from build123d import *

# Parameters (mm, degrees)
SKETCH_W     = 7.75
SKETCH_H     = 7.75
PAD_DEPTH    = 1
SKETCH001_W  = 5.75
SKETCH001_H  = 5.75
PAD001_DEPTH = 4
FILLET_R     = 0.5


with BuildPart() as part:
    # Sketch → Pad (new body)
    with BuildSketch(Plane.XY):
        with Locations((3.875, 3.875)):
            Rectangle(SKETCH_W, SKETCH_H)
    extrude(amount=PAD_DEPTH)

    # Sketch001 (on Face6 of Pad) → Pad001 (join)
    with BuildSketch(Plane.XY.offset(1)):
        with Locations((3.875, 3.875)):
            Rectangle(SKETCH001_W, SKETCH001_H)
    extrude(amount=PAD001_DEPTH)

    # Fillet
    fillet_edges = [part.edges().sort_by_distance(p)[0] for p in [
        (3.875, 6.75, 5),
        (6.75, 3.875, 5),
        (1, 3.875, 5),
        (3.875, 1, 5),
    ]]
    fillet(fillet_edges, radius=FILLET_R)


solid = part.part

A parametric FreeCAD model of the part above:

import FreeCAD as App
import Part
import Sketcher
Q = App.Units.Quantity


def edges_at(feature, points):
    """Names of the edges that pass closest to the given points."""
    edges = feature.Shape.Edges
    near = lambda p: min(range(len(edges)), key=lambda i: edges[i].distToShape(Part.Vertex(*p))[0])
    return sorted({f"Edge{near(p) + 1}" for p in points})


def add_polygon(sketch, points):
    """Adds a closed chain of lines whose ends are joined by coincident constraints."""
    first, n = sketch.GeometryCount, len(points)
    for a, b in zip(points, points[1:] + points[:1]):
        sketch.addGeometry(Part.LineSegment(App.Vector(*a, 0), App.Vector(*b, 0)), False)
    for i in range(n):
        sketch.addConstraint(Sketcher.Constraint("Coincident", first + i, 2, first + (i + 1) % n, 1))

doc = App.newDocument("Part")
body = doc.addObject("PartDesign::Body", "Body")

# Sketch on XY plane
sketch1 = doc.addObject("Sketcher::SketchObject", "Sketch")
body.addObject(sketch1)
sketch1.AttachmentSupport = (doc.XY_Plane, [""])
sketch1.MapMode = "FlatFace"
add_polygon(sketch1, [(0, 8), (0, 0), (8, 0), (8, 8)])  # lines 0-3
sketch1.addConstraint([
    Sketcher.Constraint("Vertical", 0),
    Sketcher.Constraint("Horizontal", 1),
    Sketcher.Constraint("Vertical", 2),
    Sketcher.Constraint("Horizontal", 3),
    Sketcher.Constraint("Coincident", 0, 2, -1, 1),
    Sketcher.Constraint("Equal", 3, 0),
    Sketcher.Constraint("DistanceX", 1, 1, 1, 2, Q("7.75 mm")),
])
pad1 = doc.addObject("PartDesign::Pad", "Pad")
body.addObject(pad1)
pad1.Profile = sketch1
pad1.Length = 1

# Sketch on XY plane
sketch2 = doc.addObject("Sketcher::SketchObject", "Sketch001")
body.addObject(sketch2)
sketch2.AttachmentSupport = (doc.XY_Plane, [""])
sketch2.MapMode = "FlatFace"
sketch2.AttachmentOffset = App.Placement(App.Vector(0, 0, 1), App.Rotation())
add_polygon(sketch2, [(1, 7), (1, 1), (7, 1), (7, 7)])  # lines 0-3
sketch2.addConstraint([
    Sketcher.Constraint("Vertical", 0),
    Sketcher.Constraint("Horizontal", 1),
    Sketcher.Constraint("Vertical", 2),
    Sketcher.Constraint("Horizontal", 3),
    Sketcher.Constraint("Equal", 3, 0),
    Sketcher.Constraint("DistanceX", -1, 1, 0, 2, Q("1 mm")),
    Sketcher.Constraint("DistanceY", -1, 1, 0, 2, Q("1 mm")),
    Sketcher.Constraint("DistanceX", 1, 1, 1, 2, Q("5.75 mm")),
])
pad2 = doc.addObject("PartDesign::Pad", "Pad001")
body.addObject(pad2)
pad2.Profile = sketch2
pad2.Length = 4
doc.recompute()

fillet = doc.addObject("PartDesign::Fillet", "Fillet")
body.addObject(fillet)
fillet.Base = (pad2, edges_at(pad2, [
    (3.875, 6.75, 5),
    (6.75, 3.875, 5),
    (1, 3.875, 5),
    (3.875, 1, 5),
]))
fillet.Radius = 0.5

doc.recompute()
